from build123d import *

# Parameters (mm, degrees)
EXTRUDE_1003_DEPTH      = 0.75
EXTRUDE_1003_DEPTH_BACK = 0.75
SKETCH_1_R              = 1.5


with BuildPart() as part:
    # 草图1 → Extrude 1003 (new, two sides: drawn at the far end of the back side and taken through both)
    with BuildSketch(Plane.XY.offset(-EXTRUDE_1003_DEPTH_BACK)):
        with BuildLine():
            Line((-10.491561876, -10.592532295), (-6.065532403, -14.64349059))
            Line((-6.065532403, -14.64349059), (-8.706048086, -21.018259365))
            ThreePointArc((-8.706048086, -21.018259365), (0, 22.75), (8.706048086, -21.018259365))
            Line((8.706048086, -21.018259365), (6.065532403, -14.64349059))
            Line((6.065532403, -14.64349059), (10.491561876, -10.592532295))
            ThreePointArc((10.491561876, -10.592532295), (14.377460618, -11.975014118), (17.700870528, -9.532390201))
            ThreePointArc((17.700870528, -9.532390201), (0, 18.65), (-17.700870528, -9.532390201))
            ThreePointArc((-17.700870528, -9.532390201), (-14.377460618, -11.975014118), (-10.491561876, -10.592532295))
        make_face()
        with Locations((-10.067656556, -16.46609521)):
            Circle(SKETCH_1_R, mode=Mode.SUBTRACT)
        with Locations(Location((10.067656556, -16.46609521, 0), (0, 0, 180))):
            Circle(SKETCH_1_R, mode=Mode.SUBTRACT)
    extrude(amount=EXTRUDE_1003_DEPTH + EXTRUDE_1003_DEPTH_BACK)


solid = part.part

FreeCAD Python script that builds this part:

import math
import FreeCAD as App
import Part
import Sketcher
Q = App.Units.Quantity

doc = App.newDocument("Part")
body = doc.addObject("PartDesign::Body", "Body")

# Sketch on XY plane
sketch1 = body.newObject("Sketcher::SketchObject", "Sketch")
sketch1.AttachmentSupport = (doc.getObject("XY_Plane"), [""])
sketch1.MapMode = "FlatFace"
sketch1.addGeometry(Part.LineSegment(App.Vector(-6.065532, -14.643491, 0), App.Vector(-10.491562, -10.592532, 0)), False)
sketch1.addGeometry(Part.ArcOfCircle(Part.Circle(App.Vector(-13.737317, -7.62183, 0), App.Vector(0, 0, 1), 4.4), math.radians(-154.264435), math.radians(-42.466554)), False)
sketch1.addGeometry(Part.ArcOfCircle(Part.Circle(App.Vector(0, -1, 0), App.Vector(0, 0, 1), 19.65), math.radians(-25.735565), math.radians(205.735565)), False)
sketch1.addGeometry(Part.ArcOfCircle(Part.Circle(App.Vector(13.737317, -7.62183, 0), App.Vector(0, 0, 1), 4.4), math.radians(-137.533446), math.radians(-25.735565)), False)
sketch1.addGeometry(Part.LineSegment(App.Vector(10.491562, -10.592532, 0), App.Vector(6.065532, -14.643491, 0)), False)
sketch1.addGeometry(Part.LineSegment(App.Vector(6.065532, -14.643491, 0), App.Vector(8.706048, -21.018259, 0)), False)
sketch1.addGeometry(Part.ArcOfCircle(Part.Circle(App.Vector(0, 0, 0), App.Vector(0, 0, 1), 22.75), math.radians(-67.5), math.radians(247.5)), False)
sketch1.addGeometry(Part.LineSegment(App.Vector(-8.706048, -21.018259, 0), App.Vector(-6.065532, -14.643491, 0)), False)
sketch1.addGeometry(Part.Circle(App.Vector(10.067657, -16.466095, 0), App.Vector(0, 0, 1), 1.5), False)
sketch1.addGeometry(Part.Circle(App.Vector(-10.067657, -16.466095, 0), App.Vector(0, 0, 1), 1.5), False)
sketch1.addConstraint(Sketcher.Constraint("Coincident", 0, 2, 1, 2))
sketch1.addConstraint(Sketcher.Constraint("Tangent", 1, 1, 2, 2))
sketch1.addConstraint(Sketcher.Constraint("Tangent", 2, 1, 3, 2))
sketch1.addConstraint(Sketcher.Constraint("Coincident", 3, 1, 4, 1))
sketch1.addConstraint(Sketcher.Constraint("Coincident", 4, 2, 5, 1))
sketch1.addConstraint(Sketcher.Constraint("Coincident", 5, 2, 6, 1))
sketch1.addConstraint(Sketcher.Constraint("Coincident", 6, 2, 7, 1))
sketch1.addConstraint(Sketcher.Constraint("Coincident", 7, 2, 0, 1))
sketch1.addConstraint(Sketcher.Constraint("Coincident", 6, 3, -1, 1))
sketch1.addConstraint(Sketcher.Constraint("Equal", 1, 3))
sketch1.addConstraint(Sketcher.Constraint("Equal", 8, 9))
sketch1.addConstraint(Sketcher.Constraint("Symmetric", 1, 3, 3, 3, -2))
sketch1.addConstraint(Sketcher.Constraint("Symmetric", 8, 3, 9, 3, -2))
sketch1.addConstraint(Sketcher.Constraint("Symmetric", 4, 2, 7, 2, -2))
sketch1.addConstraint(Sketcher.Constraint("Horizontal", 0, 2, 3, 1))
sketch1.addConstraint(Sketcher.Constraint("Horizontal", 5, 2, 6, 2))
sketch1.addConstraint(Sketcher.Constraint("Diameter", 8, 3.0))
sketch1.addConstraint(Sketcher.Constraint("Radius", 1, 4.4))
sketch1.addConstraint(Sketcher.Constraint("Radius", 2, 19.65))
sketch1.addConstraint(Sketcher.Constraint("Radius", 6, 22.75))
sketch1.addConstraint(Sketcher.Constraint("Distance", 0, 6.0))
sketch1.addConstraint(Sketcher.Constraint("DistanceY", 2, 3, -1, 1, 1.0))
sketch1.addConstraint(Sketcher.Constraint("Angle", 5, Q("-67.5 deg")))
sketch1.addConstraint(Sketcher.Constraint("Distance", 5, 6.9))
sketch1.addConstraint(Sketcher.Constraint("DistanceY", 4, 2, 2, 1, 5.1111))
sketch1.addConstraint(Sketcher.Constraint("DistanceX", 0, 2, -1, 1, 10.491562))
sketch1.addConstraint(Sketcher.Constraint("DistanceX", 8, 3, 3, 3, 3.66966))
sketch1.addConstraint(Sketcher.Constraint("DistanceY", 8, 3, -1, 1, 16.466095))
pad1 = body.newObject("PartDesign::Pad", "Pad")
pad1.Profile = sketch1
pad1.Type = "TwoLengths"
pad1.Length = 0.75
pad1.Length2 = 0.75

doc.recompute()
